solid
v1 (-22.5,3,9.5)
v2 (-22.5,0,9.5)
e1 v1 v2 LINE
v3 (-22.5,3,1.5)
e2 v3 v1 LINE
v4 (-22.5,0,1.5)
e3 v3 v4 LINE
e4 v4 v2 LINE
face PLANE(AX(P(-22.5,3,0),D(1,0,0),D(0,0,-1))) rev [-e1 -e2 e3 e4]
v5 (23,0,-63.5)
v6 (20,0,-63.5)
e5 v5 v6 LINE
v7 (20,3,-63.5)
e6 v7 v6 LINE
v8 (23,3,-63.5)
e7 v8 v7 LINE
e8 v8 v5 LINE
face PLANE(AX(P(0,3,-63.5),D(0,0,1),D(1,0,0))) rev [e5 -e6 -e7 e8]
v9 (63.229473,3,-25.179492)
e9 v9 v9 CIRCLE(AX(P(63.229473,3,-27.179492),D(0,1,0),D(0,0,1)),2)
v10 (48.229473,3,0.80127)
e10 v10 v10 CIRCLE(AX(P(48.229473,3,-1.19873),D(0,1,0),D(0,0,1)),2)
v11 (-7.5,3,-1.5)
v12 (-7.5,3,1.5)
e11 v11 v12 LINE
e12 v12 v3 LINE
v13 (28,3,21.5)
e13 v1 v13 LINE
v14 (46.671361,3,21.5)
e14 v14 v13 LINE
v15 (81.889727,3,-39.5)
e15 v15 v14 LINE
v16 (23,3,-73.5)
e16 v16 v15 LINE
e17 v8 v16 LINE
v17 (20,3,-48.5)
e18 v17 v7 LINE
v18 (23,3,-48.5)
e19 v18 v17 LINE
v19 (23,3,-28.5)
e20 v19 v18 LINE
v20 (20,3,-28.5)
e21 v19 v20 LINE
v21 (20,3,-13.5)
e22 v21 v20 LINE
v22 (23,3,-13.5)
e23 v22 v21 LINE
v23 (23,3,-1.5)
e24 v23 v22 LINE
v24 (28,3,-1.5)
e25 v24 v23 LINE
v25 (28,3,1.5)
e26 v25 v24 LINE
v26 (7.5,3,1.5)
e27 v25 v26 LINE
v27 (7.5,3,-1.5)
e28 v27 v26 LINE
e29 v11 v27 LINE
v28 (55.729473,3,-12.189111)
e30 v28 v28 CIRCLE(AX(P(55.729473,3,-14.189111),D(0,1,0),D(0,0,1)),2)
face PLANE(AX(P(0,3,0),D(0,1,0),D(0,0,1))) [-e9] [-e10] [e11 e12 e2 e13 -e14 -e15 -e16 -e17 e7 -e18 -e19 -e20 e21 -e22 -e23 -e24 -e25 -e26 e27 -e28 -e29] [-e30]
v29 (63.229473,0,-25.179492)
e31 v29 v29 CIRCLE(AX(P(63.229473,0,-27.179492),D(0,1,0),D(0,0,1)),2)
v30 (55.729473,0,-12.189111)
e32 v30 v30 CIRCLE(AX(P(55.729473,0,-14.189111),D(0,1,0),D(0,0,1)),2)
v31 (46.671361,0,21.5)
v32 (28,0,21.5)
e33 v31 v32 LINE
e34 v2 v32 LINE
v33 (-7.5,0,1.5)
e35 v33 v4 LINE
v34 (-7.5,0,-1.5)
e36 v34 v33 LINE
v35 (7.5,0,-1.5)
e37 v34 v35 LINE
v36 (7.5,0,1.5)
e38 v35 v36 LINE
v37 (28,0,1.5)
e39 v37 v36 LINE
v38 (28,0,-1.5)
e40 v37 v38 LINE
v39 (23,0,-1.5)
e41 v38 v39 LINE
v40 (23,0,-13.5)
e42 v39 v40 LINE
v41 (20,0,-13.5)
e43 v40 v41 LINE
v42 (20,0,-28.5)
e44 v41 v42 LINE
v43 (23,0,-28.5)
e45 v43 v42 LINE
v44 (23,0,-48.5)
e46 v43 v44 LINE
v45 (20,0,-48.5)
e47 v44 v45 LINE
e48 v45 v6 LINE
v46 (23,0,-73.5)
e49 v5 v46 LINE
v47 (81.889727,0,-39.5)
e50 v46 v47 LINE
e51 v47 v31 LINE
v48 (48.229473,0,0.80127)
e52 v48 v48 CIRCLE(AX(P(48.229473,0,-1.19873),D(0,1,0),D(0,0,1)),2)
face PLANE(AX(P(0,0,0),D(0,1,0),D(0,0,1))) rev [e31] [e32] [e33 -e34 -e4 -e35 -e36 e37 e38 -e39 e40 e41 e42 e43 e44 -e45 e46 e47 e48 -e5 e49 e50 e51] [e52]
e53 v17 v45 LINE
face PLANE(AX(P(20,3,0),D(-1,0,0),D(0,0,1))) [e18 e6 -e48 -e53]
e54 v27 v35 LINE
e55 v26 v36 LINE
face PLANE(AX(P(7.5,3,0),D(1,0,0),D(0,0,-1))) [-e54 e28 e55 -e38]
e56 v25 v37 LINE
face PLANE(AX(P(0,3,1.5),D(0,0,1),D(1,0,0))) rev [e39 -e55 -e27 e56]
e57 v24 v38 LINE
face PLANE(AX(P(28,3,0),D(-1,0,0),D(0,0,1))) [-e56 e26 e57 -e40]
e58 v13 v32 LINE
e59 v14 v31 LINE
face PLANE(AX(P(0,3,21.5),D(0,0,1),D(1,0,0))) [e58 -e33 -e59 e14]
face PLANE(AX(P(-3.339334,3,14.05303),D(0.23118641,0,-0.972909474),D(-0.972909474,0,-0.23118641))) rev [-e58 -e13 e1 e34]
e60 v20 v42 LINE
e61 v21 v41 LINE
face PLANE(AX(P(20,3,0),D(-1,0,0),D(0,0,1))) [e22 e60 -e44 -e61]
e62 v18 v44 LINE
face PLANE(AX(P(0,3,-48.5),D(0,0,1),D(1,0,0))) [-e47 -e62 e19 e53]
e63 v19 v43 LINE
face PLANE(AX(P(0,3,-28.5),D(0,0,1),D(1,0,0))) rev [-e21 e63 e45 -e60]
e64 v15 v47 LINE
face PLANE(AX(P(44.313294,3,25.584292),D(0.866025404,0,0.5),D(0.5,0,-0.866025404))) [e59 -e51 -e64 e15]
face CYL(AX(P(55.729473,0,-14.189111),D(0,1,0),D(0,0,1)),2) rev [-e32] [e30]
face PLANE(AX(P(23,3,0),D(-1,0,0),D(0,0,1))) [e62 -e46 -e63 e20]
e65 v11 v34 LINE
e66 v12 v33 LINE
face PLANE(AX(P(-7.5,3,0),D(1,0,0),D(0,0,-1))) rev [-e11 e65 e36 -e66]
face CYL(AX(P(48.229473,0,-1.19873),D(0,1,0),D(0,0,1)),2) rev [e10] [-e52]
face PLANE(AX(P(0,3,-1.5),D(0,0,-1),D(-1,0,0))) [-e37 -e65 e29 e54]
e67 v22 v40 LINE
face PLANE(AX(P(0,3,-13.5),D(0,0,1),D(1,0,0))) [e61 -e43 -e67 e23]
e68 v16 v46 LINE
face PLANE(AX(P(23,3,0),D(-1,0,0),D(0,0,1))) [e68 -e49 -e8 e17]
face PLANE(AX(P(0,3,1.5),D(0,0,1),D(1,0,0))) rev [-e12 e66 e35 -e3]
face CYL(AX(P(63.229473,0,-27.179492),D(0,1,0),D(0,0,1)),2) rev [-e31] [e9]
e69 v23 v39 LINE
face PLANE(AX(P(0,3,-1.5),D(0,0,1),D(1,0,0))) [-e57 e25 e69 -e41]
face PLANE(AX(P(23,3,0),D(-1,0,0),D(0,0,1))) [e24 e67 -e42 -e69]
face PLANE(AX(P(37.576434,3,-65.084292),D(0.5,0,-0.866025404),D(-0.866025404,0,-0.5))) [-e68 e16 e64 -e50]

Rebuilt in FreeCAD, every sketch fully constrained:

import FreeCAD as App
import Part
import Sketcher
Q = App.Units.Quantity

doc = App.newDocument("Part")
params = doc.addObject("Spreadsheet::Sheet", "Params")
for row, (alias, value) in enumerate([
    ("sketch1_width", "15 mm"),
    ("sketch1_width2", "3 mm"),
    ("sketch1_width3", "5 mm"),
    ("sketch1_height", "8 mm"),
    ("sketch1_height2", "10 mm"),
    ("pad1_length", "3 mm"),
    ("sketch2_diameter", "4 mm"),
    ("pocket1_length", "3 mm"),
], start=1):
    params.set(f"A{row}", alias)
    params.set(f"B{row}", "=" + value)
    params.setAlias(f"B{row}", alias)

body = doc.addObject("PartDesign::Body", "Body")

# Sketch on XZ plane
sketch1 = body.newObject("Sketcher::SketchObject", "Sketch")
sketch1.AttachmentSupport = (doc.getObject("XZ_Plane"), [""])
sketch1.MapMode = "FlatFace"
sketch1.addGeometry(Part.LineSegment(App.Vector(28, 1.5, 0), App.Vector(7.5, 1.5, 0)), False)
sketch1.addGeometry(Part.LineSegment(App.Vector(7.5, 1.5, 0), App.Vector(7.5, -1.5, 0)), False)
sketch1.addGeometry(Part.LineSegment(App.Vector(7.5, -1.5, 0), App.Vector(-7.5, -1.5, 0)), False)
sketch1.addGeometry(Part.LineSegment(App.Vector(-7.5, -1.5, 0), App.Vector(-7.5, 1.5, 0)), False)
sketch1.addGeometry(Part.LineSegment(App.Vector(-7.5, 1.5, 0), App.Vector(-22.5, 1.5, 0)), False)
sketch1.addGeometry(Part.LineSegment(App.Vector(-22.5, 1.5, 0), App.Vector(-22.5, 9.5, 0)), False)
sketch1.addGeometry(Part.LineSegment(App.Vector(-22.5, 9.5, 0), App.Vector(28, 21.5, 0)), False)
sketch1.addGeometry(Part.LineSegment(App.Vector(28, 21.5, 0), App.Vector(46.671361, 21.5, 0)), False)
sketch1.addGeometry(Part.LineSegment(App.Vector(46.671361, 21.5, 0), App.Vector(81.889727, -39.5, 0)), False)
sketch1.addGeometry(Part.LineSegment(App.Vector(81.889727, -39.5, 0), App.Vector(23, -73.5, 0)), False)
sketch1.addGeometry(Part.LineSegment(App.Vector(23, -73.5, 0), App.Vector(23, -63.5, 0)), False)
sketch1.addGeometry(Part.LineSegment(App.Vector(23, -63.5, 0), App.Vector(20, -63.5, 0)), False)
sketch1.addGeometry(Part.LineSegment(App.Vector(20, -63.5, 0), App.Vector(20, -48.5, 0)), False)
sketch1.addGeometry(Part.LineSegment(App.Vector(20, -48.5, 0), App.Vector(23, -48.5, 0)), False)
sketch1.addGeometry(Part.LineSegment(App.Vector(23, -48.5, 0), App.Vector(23, -28.5, 0)), False)
sketch1.addGeometry(Part.LineSegment(App.Vector(23, -28.5, 0), App.Vector(20, -28.5, 0)), False)
sketch1.addGeometry(Part.LineSegment(App.Vector(20, -28.5, 0), App.Vector(20, -13.5, 0)), False)
sketch1.addGeometry(Part.LineSegment(App.Vector(20, -13.5, 0), App.Vector(23, -13.5, 0)), False)
sketch1.addGeometry(Part.LineSegment(App.Vector(23, -13.5, 0), App.Vector(23, -1.5, 0)), False)
sketch1.addGeometry(Part.LineSegment(App.Vector(23, -1.5, 0), App.Vector(28, -1.5, 0)), False)
sketch1.addGeometry(Part.LineSegment(App.Vector(28, -1.5, 0), App.Vector(28, 1.5, 0)), False)
sketch1.addConstraint(Sketcher.Constraint("Coincident", 0, 2, 1, 1))
sketch1.addConstraint(Sketcher.Constraint("Coincident", 1, 2, 2, 1))
sketch1.addConstraint(Sketcher.Constraint("Coincident", 2, 2, 3, 1))
sketch1.addConstraint(Sketcher.Constraint("Coincident", 3, 2, 4, 1))
sketch1.addConstraint(Sketcher.Constraint("Coincident", 4, 2, 5, 1))
sketch1.addConstraint(Sketcher.Constraint("Coincident", 5, 2, 6, 1))
sketch1.addConstraint(Sketcher.Constraint("Coincident", 6, 2, 7, 1))
sketch1.addConstraint(Sketcher.Constraint("Coincident", 7, 2, 8, 1))
sketch1.addConstraint(Sketcher.Constraint("Coincident", 8, 2, 9, 1))
sketch1.addConstraint(Sketcher.Constraint("Coincident", 9, 2, 10, 1))
sketch1.addConstraint(Sketcher.Constraint("Coincident", 10, 2, 11, 1))
sketch1.addConstraint(Sketcher.Constraint("Coincident", 11, 2, 12, 1))
sketch1.addConstraint(Sketcher.Constraint("Coincident", 12, 2, 13, 1))
sketch1.addConstraint(Sketcher.Constraint("Coincident", 13, 2, 14, 1))
sketch1.addConstraint(Sketcher.Constraint("Coincident", 14, 2, 15, 1))
sketch1.addConstraint(Sketcher.Constraint("Coincident", 15, 2, 16, 1))
sketch1.addConstraint(Sketcher.Constraint("Coincident", 16, 2, 17, 1))
sketch1.addConstraint(Sketcher.Constraint("Coincident", 17, 2, 18, 1))
sketch1.addConstraint(Sketcher.Constraint("Coincident", 18, 2, 19, 1))
sketch1.addConstraint(Sketcher.Constraint("Coincident", 19, 2, 20, 1))
sketch1.addConstraint(Sketcher.Constraint("Coincident", 20, 2, 0, 1))
sketch1.addConstraint(Sketcher.Constraint("Horizontal", 0))
sketch1.addConstraint(Sketcher.Constraint("Vertical", 1))
sketch1.addConstraint(Sketcher.Constraint("Horizontal", 2))
sketch1.addConstraint(Sketcher.Constraint("Vertical", 3))
sketch1.addConstraint(Sketcher.Constraint("Horizontal", 4))
sketch1.addConstraint(Sketcher.Constraint("Vertical", 5))
sketch1.addConstraint(Sketcher.Constraint("Horizontal", 7))
sketch1.addConstraint(Sketcher.Constraint("Vertical", 10))
sketch1.addConstraint(Sketcher.Constraint("Horizontal", 11))
sketch1.addConstraint(Sketcher.Constraint("Vertical", 12))
sketch1.addConstraint(Sketcher.Constraint("Horizontal", 13))
sketch1.addConstraint(Sketcher.Constraint("Vertical", 14))
sketch1.addConstraint(Sketcher.Constraint("Horizontal", 15))
sketch1.addConstraint(Sketcher.Constraint("Vertical", 16))
sketch1.addConstraint(Sketcher.Constraint("Horizontal", 17))
sketch1.addConstraint(Sketcher.Constraint("Vertical", 18))
sketch1.addConstraint(Sketcher.Constraint("Horizontal", 19))
sketch1.addConstraint(Sketcher.Constraint("Vertical", 20))
sketch1.addConstraint(Sketcher.Constraint("Symmetric", 0, 2, 2, 2, -1, 1))
sketch1.addConstraint(Sketcher.Constraint("Perpendicular", 8, 9))
sketch1.addConstraint(Sketcher.Constraint("Horizontal", 0, 2, 3, 2))
sketch1.addConstraint(Sketcher.Constraint("Horizontal", 2, 2, 18, 2))
sketch1.addConstraint(Sketcher.Constraint("Vertical", 10, 2, 13, 2))
sketch1.addConstraint(Sketcher.Constraint("Vertical", 12, 2, 15, 2))
sketch1.addConstraint(Sketcher.Constraint("Vertical", 14, 2, 17, 2))
sketch1.addConstraint(Sketcher.Constraint("Vertical", 6, 2, 19, 2))
sketch1.addConstraint(Sketcher.Constraint("Equal", 2, 4))
sketch1.addConstraint(Sketcher.Constraint("Equal", 17, 1))
sketch1.addConstraint(Sketcher.Constraint("Equal", 4, 12))
sketch1.addConstraint(Sketcher.Constraint("Equal", 12, 16))
sketch1.addConstraint(Sketcher.Constraint("DistanceX", 2, 2, 2, 1, 15.0))
sketch1.addConstraint(Sketcher.Constraint("DistanceX", 11, 2, 11, 1, 3.0))
sketch1.addConstraint(Sketcher.Constraint("DistanceX", 19, 1, 19, 2, 5.0))
sketch1.addConstraint(Sketcher.Constraint("DistanceY", 5, 1, 5, 2, 8.0))
sketch1.addConstraint(Sketcher.Constraint("DistanceY", 10, 1, 10, 2, 10.0))
sketch1.addConstraint(Sketcher.Constraint("DistanceY", 14, 1, 14, 2, 20.0))
sketch1.addConstraint(Sketcher.Constraint("DistanceY", 18, 1, 18, 2, 12.0))
sketch1.addConstraint(Sketcher.Constraint("Angle", 8, Q("-60 deg")))
sketch1.addConstraint(Sketcher.Constraint("Distance", 9, 68.0))
sketch1.addConstraint(Sketcher.Constraint("DistanceX", 0, 2, 0, 1, 20.5))
sketch1.addConstraint(Sketcher.Constraint("DistanceY", 0, 2, 6, 2, 20.0))
sketch1.setExpression("Constraints[51]", "Params.sketch1_width")
sketch1.setExpression("Constraints[52]", "Params.sketch1_width2")
sketch1.setExpression("Constraints[53]", "Params.sketch1_width3")
sketch1.setExpression("Constraints[54]", "Params.sketch1_height")
sketch1.setExpression("Constraints[55]", "Params.sketch1_height2")
pad1 = body.newObject("PartDesign::Pad", "Pad")
pad1.Profile = sketch1
pad1.setExpression("Length", "Params.pad1_length")
pad1.Reversed = True

# Sketch on XZ plane
sketch2 = body.newObject("Sketcher::SketchObject", "Sketch001")
sketch2.AttachmentSupport = (doc.getObject("XZ_Plane"), [""])
sketch2.MapMode = "FlatFace"
sketch2.AttachmentOffset = App.Placement(App.Vector(0, 0, -3), App.Rotation())
sketch2.addGeometry(Part.Circle(App.Vector(63.229473, -27.179492, 0), App.Vector(0, 0, 1), 2), False)
sketch2.addGeometry(Part.Circle(App.Vector(55.729473, -14.189111, 0), App.Vector(0, 0, 1), 2), False)
sketch2.addGeometry(Part.Circle(App.Vector(48.229473, -1.19873, 0), App.Vector(0, 0, 1), 2), False)
sketch2.addConstraint(Sketcher.Constraint("Equal", 0, 1))
sketch2.addConstraint(Sketcher.Constraint("Equal", 1, 2))
sketch2.addConstraint(Sketcher.Constraint("Diameter", 0, 4.0))
sketch2.addConstraint(Sketcher.Constraint("DistanceX", 2, 3, 0, 3, 15.0))
sketch2.addConstraint(Sketcher.Constraint("DistanceX", 1, 3, 0, 3, 7.5))
sketch2.addConstraint(Sketcher.Constraint("DistanceY", 0, 3, -1, 1, 27.179492))
sketch2.addConstraint(Sketcher.Constraint("DistanceY", 1, 3, -1, 1, 14.189111))
sketch2.addConstraint(Sketcher.Constraint("DistanceY", 2, 3, -1, 1, 1.19873))
sketch2.addConstraint(Sketcher.Constraint("DistanceX", -1, 1, 0, 3, 63.229473))
sketch2.setExpression("Constraints[2]", "Params.sketch2_diameter")
pocket1 = body.newObject("PartDesign::Pocket", "Pocket")
pocket1.Profile = sketch2
pocket1.setExpression("Length", "Params.pocket1_length")
pocket1.Reversed = True

doc.recompute()
